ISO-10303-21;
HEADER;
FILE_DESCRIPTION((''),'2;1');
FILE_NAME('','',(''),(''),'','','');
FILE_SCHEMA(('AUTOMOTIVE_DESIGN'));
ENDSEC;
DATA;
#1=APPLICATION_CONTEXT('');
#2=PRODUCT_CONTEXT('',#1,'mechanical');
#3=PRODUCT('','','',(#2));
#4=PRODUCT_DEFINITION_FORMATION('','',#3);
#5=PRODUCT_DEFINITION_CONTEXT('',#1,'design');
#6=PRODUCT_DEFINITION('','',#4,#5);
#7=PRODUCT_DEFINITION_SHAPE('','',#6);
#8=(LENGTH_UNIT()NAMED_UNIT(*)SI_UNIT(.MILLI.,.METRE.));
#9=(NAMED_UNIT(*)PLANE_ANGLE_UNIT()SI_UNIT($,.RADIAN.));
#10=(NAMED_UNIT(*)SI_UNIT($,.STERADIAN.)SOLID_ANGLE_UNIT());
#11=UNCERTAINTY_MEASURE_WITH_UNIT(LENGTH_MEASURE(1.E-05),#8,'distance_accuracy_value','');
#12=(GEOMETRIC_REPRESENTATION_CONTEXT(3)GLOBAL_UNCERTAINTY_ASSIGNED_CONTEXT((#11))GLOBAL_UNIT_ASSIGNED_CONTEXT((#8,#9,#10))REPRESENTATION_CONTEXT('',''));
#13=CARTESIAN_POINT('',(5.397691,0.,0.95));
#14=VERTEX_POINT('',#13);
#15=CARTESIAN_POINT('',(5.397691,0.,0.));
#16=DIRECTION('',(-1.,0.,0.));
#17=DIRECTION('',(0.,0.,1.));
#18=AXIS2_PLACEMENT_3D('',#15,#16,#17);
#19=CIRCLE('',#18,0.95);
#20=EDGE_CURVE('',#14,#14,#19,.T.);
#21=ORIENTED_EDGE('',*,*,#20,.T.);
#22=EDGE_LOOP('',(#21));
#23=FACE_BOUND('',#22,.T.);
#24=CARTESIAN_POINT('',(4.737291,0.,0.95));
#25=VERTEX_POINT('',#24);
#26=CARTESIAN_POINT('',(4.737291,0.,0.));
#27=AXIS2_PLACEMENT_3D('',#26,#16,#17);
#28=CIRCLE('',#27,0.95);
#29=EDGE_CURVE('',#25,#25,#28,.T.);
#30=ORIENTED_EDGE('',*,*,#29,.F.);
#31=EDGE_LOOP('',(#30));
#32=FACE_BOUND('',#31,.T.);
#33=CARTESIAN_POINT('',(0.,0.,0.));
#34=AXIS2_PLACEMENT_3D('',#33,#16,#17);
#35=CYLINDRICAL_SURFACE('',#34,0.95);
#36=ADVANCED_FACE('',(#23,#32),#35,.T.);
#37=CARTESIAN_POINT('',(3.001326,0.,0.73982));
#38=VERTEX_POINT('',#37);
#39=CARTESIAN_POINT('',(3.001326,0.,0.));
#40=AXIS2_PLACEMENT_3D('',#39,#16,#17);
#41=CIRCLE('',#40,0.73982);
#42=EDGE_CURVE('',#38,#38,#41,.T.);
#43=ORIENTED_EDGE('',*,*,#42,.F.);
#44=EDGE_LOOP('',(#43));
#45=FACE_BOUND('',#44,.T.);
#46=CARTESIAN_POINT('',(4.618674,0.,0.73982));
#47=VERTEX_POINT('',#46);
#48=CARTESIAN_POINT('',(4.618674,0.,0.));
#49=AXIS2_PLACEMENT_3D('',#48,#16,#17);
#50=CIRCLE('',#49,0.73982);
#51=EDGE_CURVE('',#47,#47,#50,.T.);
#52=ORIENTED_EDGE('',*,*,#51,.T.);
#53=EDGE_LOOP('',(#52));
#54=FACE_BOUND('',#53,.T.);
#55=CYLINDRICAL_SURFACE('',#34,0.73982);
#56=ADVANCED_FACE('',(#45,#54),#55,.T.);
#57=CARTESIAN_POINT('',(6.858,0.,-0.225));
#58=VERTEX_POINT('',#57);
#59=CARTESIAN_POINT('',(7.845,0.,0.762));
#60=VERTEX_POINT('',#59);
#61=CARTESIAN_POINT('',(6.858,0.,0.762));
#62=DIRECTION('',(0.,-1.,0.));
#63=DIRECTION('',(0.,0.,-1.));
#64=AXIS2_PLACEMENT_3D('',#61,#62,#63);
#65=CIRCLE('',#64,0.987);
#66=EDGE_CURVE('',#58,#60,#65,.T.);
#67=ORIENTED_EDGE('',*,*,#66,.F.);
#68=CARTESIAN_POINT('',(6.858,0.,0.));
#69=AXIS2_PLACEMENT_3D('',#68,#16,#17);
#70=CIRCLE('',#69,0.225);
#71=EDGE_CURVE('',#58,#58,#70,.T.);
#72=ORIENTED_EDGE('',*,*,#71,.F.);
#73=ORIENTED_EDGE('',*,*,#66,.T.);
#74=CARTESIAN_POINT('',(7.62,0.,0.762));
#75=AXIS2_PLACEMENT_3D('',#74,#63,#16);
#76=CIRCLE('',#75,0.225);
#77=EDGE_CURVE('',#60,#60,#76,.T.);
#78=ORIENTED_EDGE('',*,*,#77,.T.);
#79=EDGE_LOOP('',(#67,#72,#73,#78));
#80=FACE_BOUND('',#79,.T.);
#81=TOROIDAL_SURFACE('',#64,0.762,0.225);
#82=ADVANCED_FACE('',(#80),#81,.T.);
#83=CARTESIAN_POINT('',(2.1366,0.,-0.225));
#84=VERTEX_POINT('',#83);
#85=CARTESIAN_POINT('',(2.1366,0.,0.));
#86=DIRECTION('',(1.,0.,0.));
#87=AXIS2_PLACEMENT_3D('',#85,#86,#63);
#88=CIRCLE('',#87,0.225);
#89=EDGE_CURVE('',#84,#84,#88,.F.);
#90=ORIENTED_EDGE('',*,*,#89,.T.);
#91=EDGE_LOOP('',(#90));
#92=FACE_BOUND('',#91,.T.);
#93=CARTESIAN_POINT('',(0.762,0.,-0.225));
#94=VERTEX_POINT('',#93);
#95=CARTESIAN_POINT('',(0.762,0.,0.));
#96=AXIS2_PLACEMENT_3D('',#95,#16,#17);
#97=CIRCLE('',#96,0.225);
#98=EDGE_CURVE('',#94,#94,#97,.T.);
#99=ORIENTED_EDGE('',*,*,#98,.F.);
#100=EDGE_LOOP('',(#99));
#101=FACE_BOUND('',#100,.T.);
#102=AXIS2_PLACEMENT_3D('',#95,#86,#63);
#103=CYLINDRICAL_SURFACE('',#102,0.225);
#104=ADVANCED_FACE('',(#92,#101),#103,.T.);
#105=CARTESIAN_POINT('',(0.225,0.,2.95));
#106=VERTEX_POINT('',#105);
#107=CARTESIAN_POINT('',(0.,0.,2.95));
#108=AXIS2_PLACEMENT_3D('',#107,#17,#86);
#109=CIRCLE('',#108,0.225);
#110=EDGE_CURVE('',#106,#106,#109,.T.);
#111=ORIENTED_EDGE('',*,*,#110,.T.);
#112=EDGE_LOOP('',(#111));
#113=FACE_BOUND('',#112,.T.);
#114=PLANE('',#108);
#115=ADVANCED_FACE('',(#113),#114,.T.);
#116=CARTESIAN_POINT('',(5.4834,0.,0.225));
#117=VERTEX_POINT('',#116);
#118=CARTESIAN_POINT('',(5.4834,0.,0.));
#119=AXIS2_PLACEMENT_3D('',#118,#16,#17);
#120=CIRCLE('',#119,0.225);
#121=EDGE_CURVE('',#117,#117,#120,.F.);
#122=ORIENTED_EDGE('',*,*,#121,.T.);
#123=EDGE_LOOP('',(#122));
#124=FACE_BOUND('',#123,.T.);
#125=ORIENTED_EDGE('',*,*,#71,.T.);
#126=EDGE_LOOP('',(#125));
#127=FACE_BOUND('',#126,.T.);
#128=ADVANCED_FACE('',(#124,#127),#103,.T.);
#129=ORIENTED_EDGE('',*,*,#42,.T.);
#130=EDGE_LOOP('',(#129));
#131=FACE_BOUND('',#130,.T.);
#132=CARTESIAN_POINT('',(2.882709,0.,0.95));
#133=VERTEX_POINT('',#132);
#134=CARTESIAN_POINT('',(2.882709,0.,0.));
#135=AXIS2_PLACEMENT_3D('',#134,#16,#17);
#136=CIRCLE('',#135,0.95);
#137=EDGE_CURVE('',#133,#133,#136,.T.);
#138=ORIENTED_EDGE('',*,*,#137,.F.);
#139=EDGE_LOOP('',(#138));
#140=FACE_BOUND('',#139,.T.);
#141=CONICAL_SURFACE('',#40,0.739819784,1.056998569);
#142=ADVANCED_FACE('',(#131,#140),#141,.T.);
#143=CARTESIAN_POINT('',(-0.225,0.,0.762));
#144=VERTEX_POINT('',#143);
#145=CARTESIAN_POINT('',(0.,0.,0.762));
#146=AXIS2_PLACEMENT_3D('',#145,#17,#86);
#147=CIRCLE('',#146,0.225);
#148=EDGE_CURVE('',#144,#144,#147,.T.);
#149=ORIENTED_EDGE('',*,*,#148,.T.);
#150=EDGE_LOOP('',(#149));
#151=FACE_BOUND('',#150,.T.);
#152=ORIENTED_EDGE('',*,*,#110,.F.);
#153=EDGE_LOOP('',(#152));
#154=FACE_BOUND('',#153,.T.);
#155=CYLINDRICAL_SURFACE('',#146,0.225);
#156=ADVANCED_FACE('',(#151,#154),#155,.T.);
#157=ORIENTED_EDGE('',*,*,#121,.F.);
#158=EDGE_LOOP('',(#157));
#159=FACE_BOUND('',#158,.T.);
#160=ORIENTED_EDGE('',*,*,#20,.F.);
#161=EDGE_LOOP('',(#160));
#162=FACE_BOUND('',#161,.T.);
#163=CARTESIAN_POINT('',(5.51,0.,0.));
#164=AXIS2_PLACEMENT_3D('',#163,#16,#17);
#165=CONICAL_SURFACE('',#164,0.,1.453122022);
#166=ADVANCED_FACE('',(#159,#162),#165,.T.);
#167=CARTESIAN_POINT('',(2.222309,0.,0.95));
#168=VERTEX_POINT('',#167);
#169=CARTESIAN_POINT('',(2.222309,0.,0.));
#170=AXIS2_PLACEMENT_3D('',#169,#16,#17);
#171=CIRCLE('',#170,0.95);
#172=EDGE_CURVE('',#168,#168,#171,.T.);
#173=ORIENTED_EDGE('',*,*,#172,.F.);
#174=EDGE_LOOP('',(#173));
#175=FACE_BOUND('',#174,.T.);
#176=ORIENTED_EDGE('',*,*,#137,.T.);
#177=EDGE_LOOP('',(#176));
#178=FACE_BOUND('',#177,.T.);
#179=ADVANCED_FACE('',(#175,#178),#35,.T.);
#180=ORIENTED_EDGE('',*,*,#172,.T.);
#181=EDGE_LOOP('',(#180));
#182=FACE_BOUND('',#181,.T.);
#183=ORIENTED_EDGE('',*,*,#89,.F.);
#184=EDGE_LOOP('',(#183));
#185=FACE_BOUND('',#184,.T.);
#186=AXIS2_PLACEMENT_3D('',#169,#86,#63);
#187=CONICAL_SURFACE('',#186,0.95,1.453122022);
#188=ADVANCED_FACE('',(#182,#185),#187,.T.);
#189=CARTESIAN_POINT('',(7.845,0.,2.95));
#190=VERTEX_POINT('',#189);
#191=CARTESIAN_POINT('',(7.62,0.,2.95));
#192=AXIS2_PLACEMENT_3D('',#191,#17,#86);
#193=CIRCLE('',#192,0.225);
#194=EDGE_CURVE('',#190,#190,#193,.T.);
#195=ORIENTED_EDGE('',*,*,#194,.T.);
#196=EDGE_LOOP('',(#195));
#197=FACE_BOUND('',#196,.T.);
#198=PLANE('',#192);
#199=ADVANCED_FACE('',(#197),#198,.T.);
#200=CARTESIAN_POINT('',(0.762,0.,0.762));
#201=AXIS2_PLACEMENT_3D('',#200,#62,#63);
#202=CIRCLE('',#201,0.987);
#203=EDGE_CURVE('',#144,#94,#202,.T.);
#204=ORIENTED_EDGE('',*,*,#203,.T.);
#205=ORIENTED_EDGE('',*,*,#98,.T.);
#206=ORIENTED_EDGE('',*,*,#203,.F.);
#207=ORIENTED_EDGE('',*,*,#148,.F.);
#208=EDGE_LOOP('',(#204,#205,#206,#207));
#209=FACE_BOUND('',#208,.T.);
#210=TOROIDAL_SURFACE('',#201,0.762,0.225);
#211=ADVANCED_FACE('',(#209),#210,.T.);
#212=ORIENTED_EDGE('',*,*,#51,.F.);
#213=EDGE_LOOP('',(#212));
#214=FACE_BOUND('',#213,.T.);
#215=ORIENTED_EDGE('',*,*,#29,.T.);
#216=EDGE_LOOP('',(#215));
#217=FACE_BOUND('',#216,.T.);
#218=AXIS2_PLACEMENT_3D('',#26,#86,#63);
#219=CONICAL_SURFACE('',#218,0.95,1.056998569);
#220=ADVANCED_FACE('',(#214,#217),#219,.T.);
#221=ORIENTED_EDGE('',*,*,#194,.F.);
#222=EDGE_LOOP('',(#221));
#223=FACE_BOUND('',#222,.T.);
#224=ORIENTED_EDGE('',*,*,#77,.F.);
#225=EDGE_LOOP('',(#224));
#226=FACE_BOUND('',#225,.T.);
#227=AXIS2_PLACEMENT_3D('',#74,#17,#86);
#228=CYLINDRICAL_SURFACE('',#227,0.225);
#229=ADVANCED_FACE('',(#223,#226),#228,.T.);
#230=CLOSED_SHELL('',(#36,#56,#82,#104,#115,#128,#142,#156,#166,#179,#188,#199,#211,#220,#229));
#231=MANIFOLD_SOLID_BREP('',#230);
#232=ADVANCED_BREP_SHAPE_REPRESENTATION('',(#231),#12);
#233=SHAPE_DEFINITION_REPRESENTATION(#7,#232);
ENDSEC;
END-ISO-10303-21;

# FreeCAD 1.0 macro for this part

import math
import FreeCAD as App
import Part
import Sketcher
from FreeCAD import Vector
Q = App.Units.Quantity


def add_polygon(sketch, points):
    """Adds a closed chain of lines whose ends are joined by coincident constraints."""
    first, n = sketch.GeometryCount, len(points)
    for a, b in zip(points, points[1:] + points[:1]):
        sketch.addGeometry(Part.LineSegment(App.Vector(*a, 0), App.Vector(*b, 0)), False)
    for i in range(n):
        sketch.addConstraint(Sketcher.Constraint("Coincident", first + i, 2, first + (i + 1) % n, 1))

doc = App.newDocument("Part")
body = doc.addObject("PartDesign::Body", "Body")

# Sketch on XY plane
sketch1 = doc.addObject("Sketcher::SketchObject", "Sketch")
body.addObject(sketch1)
sketch1.AttachmentSupport = (doc.XY_Plane, [""])
sketch1.MapMode = "FlatFace"
add_polygon(sketch1, [(2.22, 0.95), (2.11, 0), (5.51, 0), (5.4, 0.95), (4.74, 0.95), (4.62, 0.74), (3, 0.74), (2.88, 0.95)])  # lines 0-7
sketch1.addConstraint([
    Sketcher.Constraint("Horizontal", 1),
    Sketcher.Constraint("Horizontal", 3),
    Sketcher.Constraint("Horizontal", 5),
    Sketcher.Constraint("Horizontal", 7),
    Sketcher.Constraint("PointOnObject", 0, 2, -1),
    Sketcher.Constraint("Horizontal", 3, 2, 6, 2),
    Sketcher.Constraint("Equal", 3, 7),
    Sketcher.Constraint("Equal", 0, 2),
    Sketcher.Constraint("Equal", 4, 6),
    Sketcher.Constraint("DistanceX", 3, 2, 3, 1, Q("0.026 in")),
    Sketcher.Constraint("DistanceX", 1, 1, 1, 2, Q("3.4 mm")),
    Sketcher.Constraint("DistanceX", 5, 2, 5, 1, Q("1.617348 mm")),
    Sketcher.Constraint("DistanceX", -1, 1, 0, 2, Q("2.11 mm")),
    Sketcher.Constraint("DistanceY", -1, 1, 2, 2, Q("0.95 mm")),
    Sketcher.Constraint("Distance", 4, Q("0.241341 mm")),
    Sketcher.Constraint("DistanceX", -1, 1, 2, 2, Q("5.397691 mm")),
])
revolution = doc.addObject("PartDesign::Revolution", "Revolution")
body.addObject(revolution)
revolution.Profile = sketch1
revolution.ReferenceAxis = (sketch1, ["H_Axis"])
revolution.Angle = 360

# Sketch on XY plane
sketch2 = doc.addObject("Sketcher::SketchObject", "Sketch001")
body.addObject(sketch2)
sketch2.AttachmentSupport = (doc.XY_Plane, [""])
sketch2.MapMode = "FlatFace"
sketch2.AttachmentOffset = App.Placement(Vector(0, 0, 0.95), App.Rotation())
sketch2.addGeometry(Part.Circle(Vector(0, 0, 0), Vector(0, 0, 1), 0.23), False)
sketch2.addConstraint([
    Sketcher.Constraint("Coincident", 0, 3, -1, 1),
    Sketcher.Constraint("Diameter", 0, Q("0.45 mm")),
])

# Sketch on XZ plane
sketch3 = doc.addObject("Sketcher::SketchObject", "Sketch002")
body.addObject(sketch3)
sketch3.AttachmentSupport = (doc.XZ_Plane, [""])
sketch3.MapMode = "FlatFace"
sketch3.addGeometry([
    Part.LineSegment(Vector(0, 0.95, 0), Vector(0, 0.76, 0)),  # 0
    Part.ArcOfCircle(Part.Circle(Vector(0.76, 0.76, 0), Vector(0, 0, 1), 0.76), math.radians(-180), math.radians(-90)),  # 1
    Part.LineSegment(Vector(0.76, 0, 0), Vector(6.86, 0, 0)),  # 2
    Part.ArcOfCircle(Part.Circle(Vector(6.86, 0.76, 0), Vector(0, 0, 1), 0.76), math.radians(-90), math.radians(0)),  # 3
    Part.LineSegment(Vector(7.62, 0.76, 0), Vector(7.62, 0.95, 0)),  # 4
], False)
sketch3.addConstraint([
    Sketcher.Constraint("Tangent", 0, 2, 1, 1),
    Sketcher.Constraint("Tangent", 1, 2, 2, 1),
    Sketcher.Constraint("Tangent", 2, 2, 3, 1),
    Sketcher.Constraint("Tangent", 3, 2, 4, 1),
    Sketcher.Constraint("Vertical", 0),
    Sketcher.Constraint("Horizontal", 2),
    Sketcher.Constraint("Vertical", 4),
    Sketcher.Constraint("Equal", 1, 3),
    Sketcher.Constraint("PointOnObject", 0, 1, -2),
    Sketcher.Constraint("PointOnObject", 1, 2, -1),
    Sketcher.Constraint("Horizontal", 0, 1, 4, 2),
    Sketcher.Constraint("Radius", 1, Q("0.03 in")),
    Sketcher.Constraint("DistanceX", 2, 1, 2, 2, Q("0.24 in")),
    Sketcher.Constraint("DistanceY", 0, 2, 0, 1, Q("0.188 mm")),
])
doc.recompute()

additivepipe = doc.addObject("PartDesign::AdditivePipe", "AdditivePipe")
body.addObject(additivepipe)
additivepipe.Profile = sketch2
additivepipe.Spine = (sketch3, ["Edge1", "Edge2", "Edge3", "Edge4", "Edge5"])

# Sketch on XY plane
sketch4 = doc.addObject("Sketcher::SketchObject", "Sketch003")
body.addObject(sketch4)
sketch4.AttachmentSupport = (doc.XY_Plane, [""])
sketch4.MapMode = "FlatFace"
sketch4.AttachmentOffset = App.Placement(Vector(0, 0, 0.95), App.Rotation())
sketch4.addGeometry([
    Part.Circle(Vector(0, 0, 0), Vector(0, 0, 1), 0.23),
    Part.Circle(Vector(7.62, 0, 0), Vector(0, 0, 1), 0.23),
], False)
sketch4.addConstraint([
    Sketcher.Constraint("Coincident", 0, 3, -1, 1),
    Sketcher.Constraint("Equal", 0, 1),
    Sketcher.Constraint("PointOnObject", 1, 3, -1),
    Sketcher.Constraint("DistanceX", -1, 1, 1, 3, Q("0.3 in")),
    Sketcher.Constraint("Diameter", 0, Q("0.45 mm")),
])
pad1 = doc.addObject("PartDesign::Pad", "Pad")
body.addObject(pad1)
pad1.Profile = sketch4
pad1.Length = 2

doc.recompute()
